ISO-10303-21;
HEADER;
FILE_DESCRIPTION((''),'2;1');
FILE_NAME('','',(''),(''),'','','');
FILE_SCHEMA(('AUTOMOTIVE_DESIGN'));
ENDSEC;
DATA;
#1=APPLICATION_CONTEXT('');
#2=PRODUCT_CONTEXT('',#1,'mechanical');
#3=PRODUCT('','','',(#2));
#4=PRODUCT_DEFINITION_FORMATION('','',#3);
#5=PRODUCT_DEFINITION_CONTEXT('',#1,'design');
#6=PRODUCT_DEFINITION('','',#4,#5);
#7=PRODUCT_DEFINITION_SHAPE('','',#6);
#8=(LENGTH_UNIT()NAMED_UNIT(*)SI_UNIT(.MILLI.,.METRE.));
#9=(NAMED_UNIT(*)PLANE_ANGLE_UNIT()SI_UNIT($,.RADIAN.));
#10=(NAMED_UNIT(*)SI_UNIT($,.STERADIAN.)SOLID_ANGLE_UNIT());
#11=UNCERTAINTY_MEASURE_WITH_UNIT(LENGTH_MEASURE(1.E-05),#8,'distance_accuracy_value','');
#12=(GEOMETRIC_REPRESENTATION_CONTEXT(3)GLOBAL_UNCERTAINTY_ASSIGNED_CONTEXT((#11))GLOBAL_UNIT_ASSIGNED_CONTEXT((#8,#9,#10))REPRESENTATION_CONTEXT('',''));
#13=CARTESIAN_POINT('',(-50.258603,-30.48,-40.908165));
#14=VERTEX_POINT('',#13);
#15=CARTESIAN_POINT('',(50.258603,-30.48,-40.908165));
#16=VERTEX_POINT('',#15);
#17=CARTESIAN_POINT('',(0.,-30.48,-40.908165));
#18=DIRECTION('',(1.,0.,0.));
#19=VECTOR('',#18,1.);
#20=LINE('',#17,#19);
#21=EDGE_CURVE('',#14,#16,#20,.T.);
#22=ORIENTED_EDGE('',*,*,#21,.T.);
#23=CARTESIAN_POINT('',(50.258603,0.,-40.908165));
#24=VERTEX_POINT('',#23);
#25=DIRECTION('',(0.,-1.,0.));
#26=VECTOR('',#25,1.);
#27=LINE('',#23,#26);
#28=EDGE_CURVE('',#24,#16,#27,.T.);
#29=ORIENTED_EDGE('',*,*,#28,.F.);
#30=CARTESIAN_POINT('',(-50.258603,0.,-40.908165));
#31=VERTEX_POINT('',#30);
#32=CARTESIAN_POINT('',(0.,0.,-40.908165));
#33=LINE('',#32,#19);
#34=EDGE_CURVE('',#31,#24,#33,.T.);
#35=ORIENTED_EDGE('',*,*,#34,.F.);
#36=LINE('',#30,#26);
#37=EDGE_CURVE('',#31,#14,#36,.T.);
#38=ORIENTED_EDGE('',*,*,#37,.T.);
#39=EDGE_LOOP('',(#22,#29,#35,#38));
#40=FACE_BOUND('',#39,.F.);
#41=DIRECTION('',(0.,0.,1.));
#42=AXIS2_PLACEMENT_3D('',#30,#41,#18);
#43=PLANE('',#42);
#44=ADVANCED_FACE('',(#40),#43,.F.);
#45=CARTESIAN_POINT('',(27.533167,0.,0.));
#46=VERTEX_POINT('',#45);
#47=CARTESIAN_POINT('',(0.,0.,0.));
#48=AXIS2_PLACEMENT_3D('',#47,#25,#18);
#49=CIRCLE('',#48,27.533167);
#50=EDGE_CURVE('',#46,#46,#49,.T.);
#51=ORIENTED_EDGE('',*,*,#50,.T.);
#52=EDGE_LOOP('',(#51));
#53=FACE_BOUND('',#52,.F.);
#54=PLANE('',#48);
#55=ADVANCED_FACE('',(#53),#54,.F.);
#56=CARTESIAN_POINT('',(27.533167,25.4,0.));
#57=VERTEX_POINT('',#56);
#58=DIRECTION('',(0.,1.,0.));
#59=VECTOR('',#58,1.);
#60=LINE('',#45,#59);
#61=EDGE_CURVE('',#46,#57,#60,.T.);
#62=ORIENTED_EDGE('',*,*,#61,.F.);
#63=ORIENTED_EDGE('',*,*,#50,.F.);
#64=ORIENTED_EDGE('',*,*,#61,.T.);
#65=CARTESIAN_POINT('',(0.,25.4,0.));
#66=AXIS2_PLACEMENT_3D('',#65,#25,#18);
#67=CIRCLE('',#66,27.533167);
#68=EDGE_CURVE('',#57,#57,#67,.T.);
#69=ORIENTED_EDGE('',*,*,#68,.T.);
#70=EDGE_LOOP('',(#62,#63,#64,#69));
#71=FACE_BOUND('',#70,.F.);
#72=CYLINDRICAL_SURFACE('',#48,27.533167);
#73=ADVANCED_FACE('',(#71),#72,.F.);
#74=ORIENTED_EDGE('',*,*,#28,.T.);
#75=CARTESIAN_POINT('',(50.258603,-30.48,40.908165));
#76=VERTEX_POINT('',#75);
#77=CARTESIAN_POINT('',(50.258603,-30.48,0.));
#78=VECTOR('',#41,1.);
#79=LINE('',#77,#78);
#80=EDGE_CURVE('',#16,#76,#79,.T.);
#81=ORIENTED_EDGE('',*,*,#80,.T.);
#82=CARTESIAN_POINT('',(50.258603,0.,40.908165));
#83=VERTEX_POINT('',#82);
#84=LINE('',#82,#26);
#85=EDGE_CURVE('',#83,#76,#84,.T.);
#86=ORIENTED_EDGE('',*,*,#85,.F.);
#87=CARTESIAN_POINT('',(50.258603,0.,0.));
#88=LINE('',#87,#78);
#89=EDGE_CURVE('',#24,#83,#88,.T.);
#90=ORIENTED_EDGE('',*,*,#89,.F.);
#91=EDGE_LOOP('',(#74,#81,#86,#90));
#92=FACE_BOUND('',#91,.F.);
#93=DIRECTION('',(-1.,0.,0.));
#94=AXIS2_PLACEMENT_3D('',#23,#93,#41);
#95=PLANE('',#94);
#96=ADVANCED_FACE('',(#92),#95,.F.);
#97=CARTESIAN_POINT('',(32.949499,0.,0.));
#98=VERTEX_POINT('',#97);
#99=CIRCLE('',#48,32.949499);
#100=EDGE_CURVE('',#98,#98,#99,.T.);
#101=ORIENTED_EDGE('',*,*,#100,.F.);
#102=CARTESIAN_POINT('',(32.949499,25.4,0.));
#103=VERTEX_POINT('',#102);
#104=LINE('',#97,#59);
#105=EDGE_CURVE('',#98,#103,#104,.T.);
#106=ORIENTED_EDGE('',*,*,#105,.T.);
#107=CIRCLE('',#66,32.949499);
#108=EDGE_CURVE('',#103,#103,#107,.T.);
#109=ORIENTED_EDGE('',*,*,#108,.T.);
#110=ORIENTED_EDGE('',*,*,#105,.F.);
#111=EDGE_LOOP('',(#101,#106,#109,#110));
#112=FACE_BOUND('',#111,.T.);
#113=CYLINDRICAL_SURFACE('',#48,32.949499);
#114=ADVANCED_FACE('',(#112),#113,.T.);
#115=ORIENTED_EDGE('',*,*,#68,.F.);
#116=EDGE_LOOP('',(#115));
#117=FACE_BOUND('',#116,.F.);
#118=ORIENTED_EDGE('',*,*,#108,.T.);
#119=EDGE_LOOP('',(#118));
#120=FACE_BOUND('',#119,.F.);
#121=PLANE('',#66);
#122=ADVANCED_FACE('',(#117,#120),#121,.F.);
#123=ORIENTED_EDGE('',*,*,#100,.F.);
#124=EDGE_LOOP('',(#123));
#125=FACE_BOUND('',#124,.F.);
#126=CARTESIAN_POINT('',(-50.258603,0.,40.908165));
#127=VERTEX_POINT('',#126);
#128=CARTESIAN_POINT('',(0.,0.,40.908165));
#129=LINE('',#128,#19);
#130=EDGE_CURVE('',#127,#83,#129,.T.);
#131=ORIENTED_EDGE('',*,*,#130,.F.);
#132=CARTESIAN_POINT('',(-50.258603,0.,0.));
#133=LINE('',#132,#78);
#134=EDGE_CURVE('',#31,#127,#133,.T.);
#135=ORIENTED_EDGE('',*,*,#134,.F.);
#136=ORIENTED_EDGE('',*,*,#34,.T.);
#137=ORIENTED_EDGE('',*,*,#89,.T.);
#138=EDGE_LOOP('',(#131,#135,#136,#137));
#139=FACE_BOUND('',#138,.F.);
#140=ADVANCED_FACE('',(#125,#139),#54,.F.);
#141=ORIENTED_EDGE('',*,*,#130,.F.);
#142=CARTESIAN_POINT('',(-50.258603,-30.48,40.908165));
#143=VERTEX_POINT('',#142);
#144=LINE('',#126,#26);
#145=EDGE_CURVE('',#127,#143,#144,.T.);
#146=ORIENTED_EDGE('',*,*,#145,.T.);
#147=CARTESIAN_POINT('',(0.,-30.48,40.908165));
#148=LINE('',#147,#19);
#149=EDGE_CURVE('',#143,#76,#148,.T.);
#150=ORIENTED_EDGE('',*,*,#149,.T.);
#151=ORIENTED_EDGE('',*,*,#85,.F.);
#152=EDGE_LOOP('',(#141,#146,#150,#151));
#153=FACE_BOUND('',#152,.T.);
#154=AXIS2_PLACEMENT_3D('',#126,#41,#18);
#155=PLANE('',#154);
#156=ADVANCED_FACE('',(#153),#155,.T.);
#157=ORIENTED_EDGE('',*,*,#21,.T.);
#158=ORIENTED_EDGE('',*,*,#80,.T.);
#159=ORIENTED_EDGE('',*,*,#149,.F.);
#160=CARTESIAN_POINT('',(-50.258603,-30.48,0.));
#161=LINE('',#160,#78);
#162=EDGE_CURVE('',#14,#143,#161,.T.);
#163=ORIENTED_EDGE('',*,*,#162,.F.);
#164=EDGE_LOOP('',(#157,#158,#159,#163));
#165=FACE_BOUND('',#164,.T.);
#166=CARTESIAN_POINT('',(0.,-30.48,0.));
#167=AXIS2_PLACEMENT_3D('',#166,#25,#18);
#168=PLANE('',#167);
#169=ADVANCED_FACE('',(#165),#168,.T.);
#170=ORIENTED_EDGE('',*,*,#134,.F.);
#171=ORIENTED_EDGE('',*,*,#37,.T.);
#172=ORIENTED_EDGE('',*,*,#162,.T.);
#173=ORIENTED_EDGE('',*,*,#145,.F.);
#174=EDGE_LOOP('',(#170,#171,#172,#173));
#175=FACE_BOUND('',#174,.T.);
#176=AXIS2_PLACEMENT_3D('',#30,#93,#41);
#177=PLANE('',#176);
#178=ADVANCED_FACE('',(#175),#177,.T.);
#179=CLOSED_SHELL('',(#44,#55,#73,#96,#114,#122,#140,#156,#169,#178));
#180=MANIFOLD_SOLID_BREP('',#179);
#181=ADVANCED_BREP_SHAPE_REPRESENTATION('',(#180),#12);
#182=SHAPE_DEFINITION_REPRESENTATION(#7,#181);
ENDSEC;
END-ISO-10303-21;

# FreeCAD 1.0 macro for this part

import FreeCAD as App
import Part
import Sketcher
Q = App.Units.Quantity


def add_polygon(sketch, points):
    """Adds a closed chain of lines whose ends are joined by coincident constraints."""
    first, n = sketch.GeometryCount, len(points)
    for a, b in zip(points, points[1:] + points[:1]):
        sketch.addGeometry(Part.LineSegment(App.Vector(*a, 0), App.Vector(*b, 0)), False)
    for i in range(n):
        sketch.addConstraint(Sketcher.Constraint("Coincident", first + i, 2, first + (i + 1) % n, 1))

doc = App.newDocument("Part")
body = doc.addObject("PartDesign::Body", "Body")

sketch1 = doc.addObject("Sketcher::SketchObject", "Sketch")
body.addObject(sketch1)
sketch1.AttachmentSupport = (doc.XZ_Plane, [""])
sketch1.MapMode = "FlatFace"
add_polygon(sketch1, [(-50, 41), (-50, -41), (50, -41), (50, 41)])
sketch1.addConstraint([
    Sketcher.Constraint("Vertical", 0),
    Sketcher.Constraint("Horizontal", 1),
    Sketcher.Constraint("Vertical", 2),
    Sketcher.Constraint("Horizontal", 3),
    Sketcher.Constraint("Symmetric", 0, 2, 2, 2, -1, 1),
    Sketcher.Constraint("DistanceY", 0, 2, 0, 1, 81.81633),
    Sketcher.Constraint("DistanceX", 1, 1, 1, 2, 100.517206),
])
pad1 = doc.addObject("PartDesign::Pad", "Pad")
body.addObject(pad1)
pad1.Profile = sketch1
pad1.Length = Q("1.2 in")

sketch2 = doc.addObject("Sketcher::SketchObject", "Sketch001")
body.addObject(sketch2)
sketch2.AttachmentSupport = (doc.XZ_Plane, [""])
sketch2.MapMode = "FlatFace"
sketch2.addGeometry([
    Part.Circle(App.Vector(0, 0, 0), App.Vector(0, 0, 1), 33),
    Part.Circle(App.Vector(0, 0, 0), App.Vector(0, 0, 1), 28),
], False)
sketch2.addConstraint([
    Sketcher.Constraint("Coincident", 0, 3, -1, 1),
    Sketcher.Constraint("Coincident", 1, 3, -1, 1),
    Sketcher.Constraint("Diameter", 0, 65.898998),
    Sketcher.Constraint("Diameter", 1, 55.066334),
])
pad2 = doc.addObject("PartDesign::Pad", "Pad001")
body.addObject(pad2)
pad2.Profile = sketch2
pad2.Length = Q("1 in")
pad2.Reversed = True

doc.recompute()
